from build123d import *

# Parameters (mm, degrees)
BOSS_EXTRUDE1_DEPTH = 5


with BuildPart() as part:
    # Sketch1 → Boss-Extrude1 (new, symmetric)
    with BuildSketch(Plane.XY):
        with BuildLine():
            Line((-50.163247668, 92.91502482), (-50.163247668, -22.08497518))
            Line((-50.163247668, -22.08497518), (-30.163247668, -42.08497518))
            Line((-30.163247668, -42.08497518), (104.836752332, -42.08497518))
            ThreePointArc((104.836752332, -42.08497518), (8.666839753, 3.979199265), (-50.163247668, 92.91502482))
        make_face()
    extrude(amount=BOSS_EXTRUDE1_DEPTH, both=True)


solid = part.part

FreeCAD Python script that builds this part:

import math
import FreeCAD as App
import Part
import Sketcher
Q = App.Units.Quantity

doc = App.newDocument("Part")
params = doc.addObject("Spreadsheet::Sheet", "Params")
for row, (alias, value) in enumerate([
    ("sketch1_radius", "200 mm"),
    ("sketch1_width", "135 mm"),
    ("sketch1_height", "115 mm"),
    ("pad1_length", "10 mm"),
], start=1):
    params.set(f"A{row}", alias)
    params.set(f"B{row}", "=" + value)
    params.setAlias(f"B{row}", alias)

body = doc.addObject("PartDesign::Body", "Body")

# Sketch on XY plane
sketch1 = body.newObject("Sketcher::SketchObject", "Sketch")
sketch1.AttachmentSupport = (doc.getObject("XY_Plane"), [""])
sketch1.MapMode = "FlatFace"
sketch1.addGeometry([
    Part.LineSegment(App.Vector(-50, 93, 0), App.Vector(-50, -22, 0)),
    Part.LineSegment(App.Vector(-50, -22, 0), App.Vector(-30, -42, 0)),
    Part.LineSegment(App.Vector(-30, -42, 0), App.Vector(105, -42, 0)),
    Part.ArcOfCircle(Part.Circle(App.Vector(140, 155, 0), App.Vector(0, 0, 1), 200), math.radians(-162), math.radians(-100)),
], False)
sketch1.addConstraint([
    Sketcher.Constraint("Coincident", 0, 2, 1, 1),
    Sketcher.Constraint("Coincident", 1, 2, 2, 1),
    Sketcher.Constraint("Coincident", 2, 2, 3, 2),
    Sketcher.Constraint("Coincident", 3, 1, 0, 1),
    Sketcher.Constraint("Vertical", 0),
    Sketcher.Constraint("Horizontal", 2),
    Sketcher.Constraint("Radius", 3, Q("200 mm")),
    Sketcher.Constraint("DistanceX", 2, 1, 2, 2, Q("135 mm")),
    Sketcher.Constraint("DistanceY", 0, 2, 0, 1, Q("115 mm")),
    Sketcher.Constraint("Angle", 1, Q("-45 deg")),
    Sketcher.Constraint("DistanceX", 0, 2, 1, 2, Q("20 mm")),
    Sketcher.Constraint("DistanceX", -1, 1, 3, 3, Q("140.022989 mm")),
    Sketcher.Constraint("DistanceY", -1, 1, 3, 3, Q("154.795518 mm")),
])
sketch1.setExpression("Constraints[6]", "Params.sketch1_radius")
sketch1.setExpression("Constraints[7]", "Params.sketch1_width")
sketch1.setExpression("Constraints[8]", "Params.sketch1_height")
pad1 = body.newObject("PartDesign::Pad", "Pad")
pad1.Profile = sketch1
pad1.setExpression("Length", "Params.pad1_length")
pad1.Midplane = True

doc.recompute()
